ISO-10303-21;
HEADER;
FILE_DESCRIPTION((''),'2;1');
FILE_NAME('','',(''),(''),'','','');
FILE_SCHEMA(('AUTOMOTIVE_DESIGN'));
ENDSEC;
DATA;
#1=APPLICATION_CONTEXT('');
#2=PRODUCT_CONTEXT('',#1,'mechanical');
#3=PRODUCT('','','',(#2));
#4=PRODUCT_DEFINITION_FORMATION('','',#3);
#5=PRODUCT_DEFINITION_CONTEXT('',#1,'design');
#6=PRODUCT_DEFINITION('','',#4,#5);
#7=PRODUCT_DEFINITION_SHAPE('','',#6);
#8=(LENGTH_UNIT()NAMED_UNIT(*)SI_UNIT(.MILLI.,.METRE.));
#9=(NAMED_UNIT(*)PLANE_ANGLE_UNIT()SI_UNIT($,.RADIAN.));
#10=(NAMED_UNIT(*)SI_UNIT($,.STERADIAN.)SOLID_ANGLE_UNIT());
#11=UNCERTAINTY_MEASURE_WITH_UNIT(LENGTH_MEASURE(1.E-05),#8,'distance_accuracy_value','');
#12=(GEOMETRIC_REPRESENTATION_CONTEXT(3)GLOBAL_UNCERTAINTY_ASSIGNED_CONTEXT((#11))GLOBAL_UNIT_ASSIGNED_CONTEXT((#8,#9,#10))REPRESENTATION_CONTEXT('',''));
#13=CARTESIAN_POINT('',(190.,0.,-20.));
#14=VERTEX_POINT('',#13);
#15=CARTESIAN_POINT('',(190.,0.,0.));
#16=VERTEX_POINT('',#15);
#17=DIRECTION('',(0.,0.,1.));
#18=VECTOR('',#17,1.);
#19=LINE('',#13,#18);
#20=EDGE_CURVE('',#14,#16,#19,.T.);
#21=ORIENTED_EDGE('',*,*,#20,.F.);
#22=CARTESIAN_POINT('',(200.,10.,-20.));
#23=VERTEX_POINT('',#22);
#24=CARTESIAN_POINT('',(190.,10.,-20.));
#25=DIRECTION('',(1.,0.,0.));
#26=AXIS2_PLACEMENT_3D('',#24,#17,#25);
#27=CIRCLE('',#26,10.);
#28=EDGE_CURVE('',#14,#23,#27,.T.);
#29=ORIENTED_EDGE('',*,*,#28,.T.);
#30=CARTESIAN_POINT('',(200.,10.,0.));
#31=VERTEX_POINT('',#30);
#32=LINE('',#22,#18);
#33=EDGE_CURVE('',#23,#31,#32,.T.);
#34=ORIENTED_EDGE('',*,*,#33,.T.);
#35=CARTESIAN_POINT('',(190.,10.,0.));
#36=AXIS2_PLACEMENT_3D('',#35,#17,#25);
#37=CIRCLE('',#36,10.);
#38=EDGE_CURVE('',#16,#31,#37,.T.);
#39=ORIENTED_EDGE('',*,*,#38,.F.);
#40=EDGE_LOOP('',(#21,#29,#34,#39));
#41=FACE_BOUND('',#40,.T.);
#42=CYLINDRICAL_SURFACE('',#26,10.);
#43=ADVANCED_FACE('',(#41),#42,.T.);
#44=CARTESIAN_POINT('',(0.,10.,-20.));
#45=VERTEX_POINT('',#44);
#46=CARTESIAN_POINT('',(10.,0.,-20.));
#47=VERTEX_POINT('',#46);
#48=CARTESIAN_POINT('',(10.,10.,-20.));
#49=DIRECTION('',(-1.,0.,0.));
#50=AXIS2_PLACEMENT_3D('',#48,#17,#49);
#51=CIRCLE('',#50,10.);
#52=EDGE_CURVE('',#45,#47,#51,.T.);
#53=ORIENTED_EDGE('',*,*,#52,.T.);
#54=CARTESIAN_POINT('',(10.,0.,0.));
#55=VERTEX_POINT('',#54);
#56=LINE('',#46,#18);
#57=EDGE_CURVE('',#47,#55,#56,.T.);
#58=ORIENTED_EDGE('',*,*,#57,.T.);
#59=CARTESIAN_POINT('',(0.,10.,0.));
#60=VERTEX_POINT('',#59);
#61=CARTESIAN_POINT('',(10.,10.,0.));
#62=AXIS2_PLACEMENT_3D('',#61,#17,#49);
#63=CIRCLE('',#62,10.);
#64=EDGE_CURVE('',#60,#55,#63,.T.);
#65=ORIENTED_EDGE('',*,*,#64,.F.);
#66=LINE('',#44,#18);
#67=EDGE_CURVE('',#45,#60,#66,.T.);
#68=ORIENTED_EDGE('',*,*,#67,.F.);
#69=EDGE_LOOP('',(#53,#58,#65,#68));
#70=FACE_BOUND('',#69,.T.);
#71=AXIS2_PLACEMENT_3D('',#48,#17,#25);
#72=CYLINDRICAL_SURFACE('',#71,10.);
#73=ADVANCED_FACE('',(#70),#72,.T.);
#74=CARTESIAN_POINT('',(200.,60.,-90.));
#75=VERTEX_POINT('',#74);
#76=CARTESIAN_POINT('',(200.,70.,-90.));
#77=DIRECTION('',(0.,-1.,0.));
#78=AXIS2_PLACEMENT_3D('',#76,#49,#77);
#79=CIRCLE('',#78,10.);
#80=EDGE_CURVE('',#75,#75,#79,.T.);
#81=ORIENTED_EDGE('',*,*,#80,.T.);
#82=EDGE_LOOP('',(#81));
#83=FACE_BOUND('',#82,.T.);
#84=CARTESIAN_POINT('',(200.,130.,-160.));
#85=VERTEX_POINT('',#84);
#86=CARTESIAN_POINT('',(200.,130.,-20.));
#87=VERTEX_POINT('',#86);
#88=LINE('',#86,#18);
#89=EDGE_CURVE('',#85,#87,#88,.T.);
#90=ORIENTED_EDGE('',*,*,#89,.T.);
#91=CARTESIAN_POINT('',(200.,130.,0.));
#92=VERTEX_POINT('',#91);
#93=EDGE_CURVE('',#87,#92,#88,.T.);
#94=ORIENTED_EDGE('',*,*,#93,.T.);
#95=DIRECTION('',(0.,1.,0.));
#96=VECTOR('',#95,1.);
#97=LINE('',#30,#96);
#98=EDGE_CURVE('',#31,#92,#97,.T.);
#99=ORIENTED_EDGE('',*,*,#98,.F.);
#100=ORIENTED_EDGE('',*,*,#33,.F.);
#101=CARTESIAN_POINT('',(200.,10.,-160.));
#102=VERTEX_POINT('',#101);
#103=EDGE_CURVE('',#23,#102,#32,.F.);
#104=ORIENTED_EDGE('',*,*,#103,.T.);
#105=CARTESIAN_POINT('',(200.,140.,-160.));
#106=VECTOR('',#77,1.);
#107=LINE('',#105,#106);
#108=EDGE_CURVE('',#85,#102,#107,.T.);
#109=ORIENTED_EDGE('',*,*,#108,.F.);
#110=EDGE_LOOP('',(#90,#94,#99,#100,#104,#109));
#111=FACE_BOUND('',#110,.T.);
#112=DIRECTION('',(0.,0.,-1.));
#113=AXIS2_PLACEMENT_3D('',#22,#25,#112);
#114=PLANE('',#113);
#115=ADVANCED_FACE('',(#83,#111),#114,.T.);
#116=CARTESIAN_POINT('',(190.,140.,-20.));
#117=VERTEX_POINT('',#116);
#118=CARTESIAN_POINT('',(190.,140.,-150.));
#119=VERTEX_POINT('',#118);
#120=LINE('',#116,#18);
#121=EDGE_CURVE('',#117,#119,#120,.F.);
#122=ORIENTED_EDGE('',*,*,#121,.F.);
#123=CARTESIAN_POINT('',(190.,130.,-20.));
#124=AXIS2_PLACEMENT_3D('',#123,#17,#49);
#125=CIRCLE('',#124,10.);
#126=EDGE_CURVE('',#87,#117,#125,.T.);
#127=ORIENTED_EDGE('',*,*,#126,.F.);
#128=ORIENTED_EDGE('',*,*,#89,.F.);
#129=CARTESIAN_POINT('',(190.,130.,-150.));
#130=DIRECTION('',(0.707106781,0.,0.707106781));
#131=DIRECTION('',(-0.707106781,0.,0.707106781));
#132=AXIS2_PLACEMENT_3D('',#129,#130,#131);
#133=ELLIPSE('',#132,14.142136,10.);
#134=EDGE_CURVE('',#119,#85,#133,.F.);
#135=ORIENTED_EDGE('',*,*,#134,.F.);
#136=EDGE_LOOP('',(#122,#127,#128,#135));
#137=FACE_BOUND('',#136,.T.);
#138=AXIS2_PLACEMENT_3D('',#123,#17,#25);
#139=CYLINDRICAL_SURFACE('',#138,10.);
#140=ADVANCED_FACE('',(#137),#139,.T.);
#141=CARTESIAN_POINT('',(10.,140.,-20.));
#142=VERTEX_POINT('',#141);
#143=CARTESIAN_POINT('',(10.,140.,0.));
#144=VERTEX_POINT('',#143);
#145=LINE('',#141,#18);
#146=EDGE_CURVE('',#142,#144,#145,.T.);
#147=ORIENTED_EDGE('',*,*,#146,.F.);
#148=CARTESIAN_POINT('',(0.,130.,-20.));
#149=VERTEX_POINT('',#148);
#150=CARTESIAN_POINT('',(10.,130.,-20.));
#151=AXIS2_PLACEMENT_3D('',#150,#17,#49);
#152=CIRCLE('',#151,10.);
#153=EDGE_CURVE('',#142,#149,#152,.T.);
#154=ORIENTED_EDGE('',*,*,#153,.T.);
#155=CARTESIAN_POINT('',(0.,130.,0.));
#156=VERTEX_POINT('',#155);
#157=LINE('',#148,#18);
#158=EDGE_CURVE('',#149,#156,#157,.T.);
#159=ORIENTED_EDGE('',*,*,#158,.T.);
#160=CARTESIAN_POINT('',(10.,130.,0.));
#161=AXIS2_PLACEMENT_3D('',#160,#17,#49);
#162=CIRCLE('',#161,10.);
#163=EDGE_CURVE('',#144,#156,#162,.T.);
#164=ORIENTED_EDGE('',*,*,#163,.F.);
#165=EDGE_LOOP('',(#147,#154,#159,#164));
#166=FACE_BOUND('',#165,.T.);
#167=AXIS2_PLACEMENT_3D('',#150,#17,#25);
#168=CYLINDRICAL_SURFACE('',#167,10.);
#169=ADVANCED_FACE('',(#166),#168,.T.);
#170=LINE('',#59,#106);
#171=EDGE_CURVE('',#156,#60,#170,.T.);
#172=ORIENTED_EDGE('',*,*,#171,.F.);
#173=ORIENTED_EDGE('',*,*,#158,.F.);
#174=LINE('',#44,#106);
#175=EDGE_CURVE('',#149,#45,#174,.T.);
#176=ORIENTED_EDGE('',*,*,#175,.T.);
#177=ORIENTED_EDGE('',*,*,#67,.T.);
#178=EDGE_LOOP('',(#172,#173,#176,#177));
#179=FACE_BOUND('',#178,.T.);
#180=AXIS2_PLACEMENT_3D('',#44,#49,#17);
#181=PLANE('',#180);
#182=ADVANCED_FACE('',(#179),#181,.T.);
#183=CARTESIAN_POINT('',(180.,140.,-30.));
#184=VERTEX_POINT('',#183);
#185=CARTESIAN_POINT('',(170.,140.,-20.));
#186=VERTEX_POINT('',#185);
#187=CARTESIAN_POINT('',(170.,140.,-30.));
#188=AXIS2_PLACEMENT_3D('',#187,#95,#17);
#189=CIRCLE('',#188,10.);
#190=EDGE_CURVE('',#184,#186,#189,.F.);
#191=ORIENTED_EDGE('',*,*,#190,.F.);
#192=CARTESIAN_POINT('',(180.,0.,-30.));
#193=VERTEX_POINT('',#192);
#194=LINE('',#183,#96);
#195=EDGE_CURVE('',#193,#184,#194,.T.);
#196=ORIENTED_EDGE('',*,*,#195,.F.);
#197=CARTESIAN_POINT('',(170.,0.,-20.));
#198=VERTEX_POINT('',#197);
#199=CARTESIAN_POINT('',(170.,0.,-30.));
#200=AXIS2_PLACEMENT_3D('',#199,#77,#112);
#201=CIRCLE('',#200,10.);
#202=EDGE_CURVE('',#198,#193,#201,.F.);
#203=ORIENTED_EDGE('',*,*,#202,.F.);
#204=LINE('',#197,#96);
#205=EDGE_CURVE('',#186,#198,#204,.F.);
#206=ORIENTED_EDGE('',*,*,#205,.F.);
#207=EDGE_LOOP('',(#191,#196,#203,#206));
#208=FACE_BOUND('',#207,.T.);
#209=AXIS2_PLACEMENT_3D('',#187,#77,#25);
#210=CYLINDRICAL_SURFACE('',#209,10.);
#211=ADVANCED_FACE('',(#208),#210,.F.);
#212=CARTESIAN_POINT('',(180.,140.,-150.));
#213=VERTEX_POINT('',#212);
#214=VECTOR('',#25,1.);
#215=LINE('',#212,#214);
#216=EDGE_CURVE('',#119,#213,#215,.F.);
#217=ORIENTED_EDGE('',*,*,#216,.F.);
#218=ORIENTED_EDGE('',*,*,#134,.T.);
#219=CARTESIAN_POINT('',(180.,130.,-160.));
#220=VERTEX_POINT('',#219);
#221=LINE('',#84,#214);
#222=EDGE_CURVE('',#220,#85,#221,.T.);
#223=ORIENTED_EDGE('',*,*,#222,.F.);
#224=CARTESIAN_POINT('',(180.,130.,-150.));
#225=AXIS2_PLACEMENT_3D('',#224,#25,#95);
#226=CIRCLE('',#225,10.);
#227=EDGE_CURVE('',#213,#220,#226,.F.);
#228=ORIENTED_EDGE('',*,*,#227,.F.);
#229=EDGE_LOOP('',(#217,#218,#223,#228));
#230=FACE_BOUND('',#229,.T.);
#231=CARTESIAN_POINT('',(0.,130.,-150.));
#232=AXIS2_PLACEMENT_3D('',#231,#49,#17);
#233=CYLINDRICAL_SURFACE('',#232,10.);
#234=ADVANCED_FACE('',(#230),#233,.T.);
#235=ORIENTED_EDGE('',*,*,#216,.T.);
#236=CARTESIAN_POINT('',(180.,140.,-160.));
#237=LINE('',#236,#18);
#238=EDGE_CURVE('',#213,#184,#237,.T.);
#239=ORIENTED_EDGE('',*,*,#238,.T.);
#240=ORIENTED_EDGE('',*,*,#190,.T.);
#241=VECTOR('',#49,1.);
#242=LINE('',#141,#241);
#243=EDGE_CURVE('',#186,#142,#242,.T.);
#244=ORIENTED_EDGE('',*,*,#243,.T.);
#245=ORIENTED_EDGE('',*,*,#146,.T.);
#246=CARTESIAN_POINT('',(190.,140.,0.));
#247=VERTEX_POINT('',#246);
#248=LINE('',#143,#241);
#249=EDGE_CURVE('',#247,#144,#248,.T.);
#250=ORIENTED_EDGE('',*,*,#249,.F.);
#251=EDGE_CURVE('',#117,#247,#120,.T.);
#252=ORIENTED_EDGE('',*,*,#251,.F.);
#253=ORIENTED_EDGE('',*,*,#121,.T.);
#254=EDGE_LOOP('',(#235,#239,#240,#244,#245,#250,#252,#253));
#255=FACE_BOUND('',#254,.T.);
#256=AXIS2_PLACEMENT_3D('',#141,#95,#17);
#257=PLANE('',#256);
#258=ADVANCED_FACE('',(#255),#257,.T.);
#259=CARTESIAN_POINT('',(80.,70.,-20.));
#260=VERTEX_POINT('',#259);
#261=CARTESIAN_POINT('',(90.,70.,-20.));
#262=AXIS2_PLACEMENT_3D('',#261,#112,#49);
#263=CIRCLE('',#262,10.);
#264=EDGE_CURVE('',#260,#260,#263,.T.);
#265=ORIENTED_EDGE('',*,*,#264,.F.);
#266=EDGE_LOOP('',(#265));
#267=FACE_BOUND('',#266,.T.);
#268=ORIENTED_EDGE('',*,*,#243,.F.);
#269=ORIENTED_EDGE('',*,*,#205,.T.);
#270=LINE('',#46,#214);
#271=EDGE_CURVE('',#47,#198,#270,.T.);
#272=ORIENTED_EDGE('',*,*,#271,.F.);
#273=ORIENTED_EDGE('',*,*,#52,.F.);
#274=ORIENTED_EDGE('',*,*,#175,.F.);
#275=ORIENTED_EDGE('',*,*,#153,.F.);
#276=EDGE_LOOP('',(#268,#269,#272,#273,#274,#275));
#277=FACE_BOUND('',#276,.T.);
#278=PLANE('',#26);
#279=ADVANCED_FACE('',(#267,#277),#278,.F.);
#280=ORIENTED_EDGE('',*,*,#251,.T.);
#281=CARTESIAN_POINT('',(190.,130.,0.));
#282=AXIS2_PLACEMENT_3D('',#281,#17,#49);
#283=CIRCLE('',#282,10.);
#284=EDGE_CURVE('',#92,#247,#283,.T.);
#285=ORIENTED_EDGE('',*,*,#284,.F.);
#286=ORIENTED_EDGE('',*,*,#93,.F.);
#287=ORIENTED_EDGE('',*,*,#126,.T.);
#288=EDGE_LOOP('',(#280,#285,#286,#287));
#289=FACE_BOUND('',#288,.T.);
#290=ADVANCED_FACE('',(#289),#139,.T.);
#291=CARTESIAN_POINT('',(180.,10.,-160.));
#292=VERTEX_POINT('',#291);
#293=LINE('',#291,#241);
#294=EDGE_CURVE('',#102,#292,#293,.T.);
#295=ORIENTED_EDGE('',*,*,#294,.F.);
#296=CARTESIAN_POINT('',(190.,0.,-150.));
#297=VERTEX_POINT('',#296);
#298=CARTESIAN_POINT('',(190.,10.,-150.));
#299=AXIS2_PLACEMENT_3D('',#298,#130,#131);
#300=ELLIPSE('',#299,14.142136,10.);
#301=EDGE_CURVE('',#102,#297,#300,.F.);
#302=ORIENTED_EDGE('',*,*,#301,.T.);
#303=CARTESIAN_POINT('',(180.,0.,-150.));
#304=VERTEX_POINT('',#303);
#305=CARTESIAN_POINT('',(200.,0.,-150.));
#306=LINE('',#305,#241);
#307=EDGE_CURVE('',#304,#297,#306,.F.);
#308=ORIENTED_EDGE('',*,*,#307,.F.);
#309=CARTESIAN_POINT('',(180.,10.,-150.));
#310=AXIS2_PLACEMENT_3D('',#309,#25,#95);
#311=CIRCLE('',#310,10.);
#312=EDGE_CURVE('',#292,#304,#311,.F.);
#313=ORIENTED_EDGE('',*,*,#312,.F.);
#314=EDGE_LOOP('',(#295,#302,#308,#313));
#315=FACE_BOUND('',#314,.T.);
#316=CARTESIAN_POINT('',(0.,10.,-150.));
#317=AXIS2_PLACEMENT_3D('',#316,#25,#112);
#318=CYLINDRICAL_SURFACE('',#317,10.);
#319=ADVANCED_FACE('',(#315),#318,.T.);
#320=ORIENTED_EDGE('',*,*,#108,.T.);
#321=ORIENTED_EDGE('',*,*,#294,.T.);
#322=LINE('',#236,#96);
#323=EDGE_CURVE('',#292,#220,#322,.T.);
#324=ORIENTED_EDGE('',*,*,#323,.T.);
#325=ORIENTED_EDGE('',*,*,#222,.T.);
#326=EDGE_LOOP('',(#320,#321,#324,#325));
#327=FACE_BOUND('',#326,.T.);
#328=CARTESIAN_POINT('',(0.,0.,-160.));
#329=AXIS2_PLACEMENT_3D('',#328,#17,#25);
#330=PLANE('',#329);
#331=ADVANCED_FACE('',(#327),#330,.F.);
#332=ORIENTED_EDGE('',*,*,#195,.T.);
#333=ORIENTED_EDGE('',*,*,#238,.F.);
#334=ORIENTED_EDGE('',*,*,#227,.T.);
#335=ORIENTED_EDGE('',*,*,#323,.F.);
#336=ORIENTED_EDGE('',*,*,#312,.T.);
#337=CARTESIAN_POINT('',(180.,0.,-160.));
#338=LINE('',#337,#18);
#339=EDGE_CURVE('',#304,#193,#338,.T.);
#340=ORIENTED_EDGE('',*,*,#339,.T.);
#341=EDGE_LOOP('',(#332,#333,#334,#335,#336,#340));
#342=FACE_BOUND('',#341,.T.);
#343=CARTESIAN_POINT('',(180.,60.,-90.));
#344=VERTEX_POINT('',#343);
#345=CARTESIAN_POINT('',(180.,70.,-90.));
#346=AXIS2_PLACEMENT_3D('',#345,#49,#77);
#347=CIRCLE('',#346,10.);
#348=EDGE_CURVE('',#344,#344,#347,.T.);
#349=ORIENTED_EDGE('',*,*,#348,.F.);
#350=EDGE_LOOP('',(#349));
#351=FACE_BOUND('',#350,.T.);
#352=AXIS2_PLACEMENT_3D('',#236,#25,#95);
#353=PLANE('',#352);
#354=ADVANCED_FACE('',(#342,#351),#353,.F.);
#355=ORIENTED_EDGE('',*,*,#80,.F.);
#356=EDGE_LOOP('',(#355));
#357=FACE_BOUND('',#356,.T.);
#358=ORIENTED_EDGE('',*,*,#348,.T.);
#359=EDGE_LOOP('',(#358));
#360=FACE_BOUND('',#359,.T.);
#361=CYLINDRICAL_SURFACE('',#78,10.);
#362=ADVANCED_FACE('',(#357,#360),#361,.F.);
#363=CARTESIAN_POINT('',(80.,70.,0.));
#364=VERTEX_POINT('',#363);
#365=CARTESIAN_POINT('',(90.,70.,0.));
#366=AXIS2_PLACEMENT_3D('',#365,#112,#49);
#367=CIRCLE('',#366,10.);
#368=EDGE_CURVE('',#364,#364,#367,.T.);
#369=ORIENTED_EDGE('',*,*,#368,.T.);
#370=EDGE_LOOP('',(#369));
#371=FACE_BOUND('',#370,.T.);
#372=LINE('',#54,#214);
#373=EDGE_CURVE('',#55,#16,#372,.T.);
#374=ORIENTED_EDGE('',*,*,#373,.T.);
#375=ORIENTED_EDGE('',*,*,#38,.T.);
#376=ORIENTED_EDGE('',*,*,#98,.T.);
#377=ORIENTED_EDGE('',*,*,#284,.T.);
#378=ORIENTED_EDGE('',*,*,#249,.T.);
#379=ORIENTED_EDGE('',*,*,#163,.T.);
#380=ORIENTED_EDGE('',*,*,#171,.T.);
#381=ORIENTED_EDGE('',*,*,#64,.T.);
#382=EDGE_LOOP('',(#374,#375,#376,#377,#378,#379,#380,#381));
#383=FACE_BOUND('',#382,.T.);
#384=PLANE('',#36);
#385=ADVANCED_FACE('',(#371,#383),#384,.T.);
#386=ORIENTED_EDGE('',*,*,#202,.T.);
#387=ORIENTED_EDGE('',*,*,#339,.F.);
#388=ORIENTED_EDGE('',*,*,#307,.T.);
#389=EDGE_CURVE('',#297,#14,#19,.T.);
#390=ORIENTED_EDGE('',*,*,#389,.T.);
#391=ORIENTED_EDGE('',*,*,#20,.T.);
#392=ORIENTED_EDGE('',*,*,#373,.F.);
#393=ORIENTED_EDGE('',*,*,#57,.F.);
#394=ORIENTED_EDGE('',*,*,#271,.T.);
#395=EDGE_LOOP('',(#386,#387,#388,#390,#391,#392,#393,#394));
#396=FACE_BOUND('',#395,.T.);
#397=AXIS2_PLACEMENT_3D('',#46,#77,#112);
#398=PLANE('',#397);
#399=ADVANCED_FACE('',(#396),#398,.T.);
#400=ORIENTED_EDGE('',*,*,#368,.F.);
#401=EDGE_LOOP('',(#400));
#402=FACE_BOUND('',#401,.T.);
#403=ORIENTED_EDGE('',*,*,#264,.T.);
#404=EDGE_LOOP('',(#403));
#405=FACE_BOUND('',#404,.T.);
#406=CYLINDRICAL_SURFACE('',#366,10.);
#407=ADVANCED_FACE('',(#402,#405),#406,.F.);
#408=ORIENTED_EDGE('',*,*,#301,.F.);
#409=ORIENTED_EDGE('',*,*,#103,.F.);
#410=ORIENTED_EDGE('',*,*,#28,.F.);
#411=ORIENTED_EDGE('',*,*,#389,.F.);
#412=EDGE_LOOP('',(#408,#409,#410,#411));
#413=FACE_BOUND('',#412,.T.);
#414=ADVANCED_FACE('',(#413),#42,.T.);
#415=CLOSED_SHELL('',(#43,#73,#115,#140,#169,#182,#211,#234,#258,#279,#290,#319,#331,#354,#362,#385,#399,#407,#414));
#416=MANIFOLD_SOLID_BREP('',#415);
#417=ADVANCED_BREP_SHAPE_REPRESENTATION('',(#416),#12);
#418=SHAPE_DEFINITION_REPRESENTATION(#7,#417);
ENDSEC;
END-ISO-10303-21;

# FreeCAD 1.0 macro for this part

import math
import FreeCAD as App
import Part
import Sketcher
from FreeCAD import Vector
Q = App.Units.Quantity


def edges_at(feature, points):
    """Names of the edges that pass closest to the given points."""
    edges = feature.Shape.Edges
    near = lambda p: min(range(len(edges)), key=lambda i: edges[i].distToShape(Part.Vertex(*p))[0])
    return sorted({f"Edge{near(p) + 1}" for p in points})


def add_polygon(sketch, points):
    """Adds a closed chain of lines whose ends are joined by coincident constraints."""
    first, n = sketch.GeometryCount, len(points)
    for a, b in zip(points, points[1:] + points[:1]):
        sketch.addGeometry(Part.LineSegment(App.Vector(*a, 0), App.Vector(*b, 0)), False)
    for i in range(n):
        sketch.addConstraint(Sketcher.Constraint("Coincident", first + i, 2, first + (i + 1) % n, 1))

doc = App.newDocument("Part")
body = doc.addObject("PartDesign::Body", "Body")

sketch1 = body.newObject("Sketcher::SketchObject", "Sketch")
sketch1.AttachmentSupport = (doc.getObject("XY_Plane"), [""])
sketch1.MapMode = "FlatFace"
sketch1.addGeometry([
    Part.LineSegment(Vector(10, 0, 0), Vector(190, 0, 0)),
    Part.ArcOfCircle(Part.Circle(Vector(190, 10, 0), Vector(0, 0, 1), 10), math.radians(-90), math.radians(0)),
    Part.LineSegment(Vector(200, 10, 0), Vector(200, 130, 0)),
    Part.ArcOfCircle(Part.Circle(Vector(190, 130, 0), Vector(0, 0, 1), 10), math.radians(0), math.radians(90)),
    Part.LineSegment(Vector(190, 140, 0), Vector(10, 140, 0)),
    Part.ArcOfCircle(Part.Circle(Vector(10, 130, 0), Vector(0, 0, 1), 10), math.radians(90), math.radians(180)),
    Part.LineSegment(Vector(0, 130, 0), Vector(0, 10, 0)),
    Part.ArcOfCircle(Part.Circle(Vector(10, 10, 0), Vector(0, 0, 1), 10), math.radians(180), math.radians(270)),
], False)
sketch1.addConstraint([
    Sketcher.Constraint("Tangent", 0, 2, 1, 1),
    Sketcher.Constraint("Tangent", 1, 2, 2, 1),
    Sketcher.Constraint("Tangent", 2, 2, 3, 1),
    Sketcher.Constraint("Tangent", 3, 2, 4, 1),
    Sketcher.Constraint("Tangent", 4, 2, 5, 1),
    Sketcher.Constraint("Tangent", 5, 2, 6, 1),
    Sketcher.Constraint("Tangent", 6, 2, 7, 1),
    Sketcher.Constraint("Tangent", 7, 2, 0, 1),
    Sketcher.Constraint("Horizontal", 0),
    Sketcher.Constraint("Vertical", 2),
    Sketcher.Constraint("Horizontal", 4),
    Sketcher.Constraint("Vertical", 6),
    Sketcher.Constraint("Equal", 1, 3),
    Sketcher.Constraint("Equal", 3, 5),
    Sketcher.Constraint("Equal", 5, 7),
    Sketcher.Constraint("PointOnObject", 0, 2, -1),
    Sketcher.Constraint("PointOnObject", 5, 2, -2),
    Sketcher.Constraint("Radius", 1, Q("10 mm")),
    Sketcher.Constraint("DistanceX", 0, 1, 0, 2, Q("180 mm")),
    Sketcher.Constraint("DistanceY", 2, 1, 2, 2, Q("120 mm")),
])
pad1 = body.newObject("PartDesign::Pad", "Pad")
pad1.Profile = sketch1
pad1.Length = 20
pad1.Reversed = True

sketch2 = body.newObject("Sketcher::SketchObject", "Sketch001")
sketch2.AttachmentSupport = (doc.getObject("XY_Plane"), [""])
sketch2.MapMode = "FlatFace"
sketch2.AttachmentOffset = App.Placement(Vector(0, 0, -20), App.Rotation())
add_polygon(sketch2, [(180, 140), (200, 140), (200, 0), (180, 0)])
sketch2.addConstraint([
    Sketcher.Constraint("Horizontal", 0),
    Sketcher.Constraint("Vertical", 1),
    Sketcher.Constraint("Horizontal", 2),
    Sketcher.Constraint("Vertical", 3),
    Sketcher.Constraint("PointOnObject", 1, 2, -1),
    Sketcher.Constraint("DistanceX", 0, 1, 0, 2, Q("20 mm")),
    Sketcher.Constraint("DistanceY", 1, 2, 1, 1, Q("140 mm")),
    Sketcher.Constraint("DistanceX", -1, 1, 0, 2, Q("200 mm")),
])
pad2 = body.newObject("PartDesign::Pad", "Pad001")
pad2.Profile = sketch2
pad2.Length = 140
pad2.Reversed = True
doc.recompute()

fillet = body.newObject("PartDesign::Fillet", "Fillet")
fillet.Base = (pad2, edges_at(pad2, [
    (190, 0, -160),
    (190, 140, -160),
    (180, 70, -20),
    (200, 0, -90),
    (200, 140, -90),
]))
fillet.Radius = 10

sketch3 = body.newObject("Sketcher::SketchObject", "Sketch002")
sketch3.AttachmentSupport = (doc.getObject("XY_Plane"), [""])
sketch3.MapMode = "FlatFace"
sketch3.AttachmentOffset = App.Placement(Vector(0, 0, -20), App.Rotation())
sketch3.addGeometry(Part.Circle(Vector(90, 70, 0), Vector(0, 0, 1), 10), False)
sketch3.addConstraint([
    Sketcher.Constraint("Diameter", 0, Q("20 mm")),
    Sketcher.Constraint("DistanceX", -1, 1, 0, 3, Q("90 mm")),
    Sketcher.Constraint("DistanceY", -1, 1, 0, 3, Q("70 mm")),
])
pocket1 = body.newObject("PartDesign::Pocket", "Pocket")
pocket1.Profile = sketch3
pocket1.Type = "ThroughAll"
pocket1.Reversed = True

sketch4 = body.newObject("Sketcher::SketchObject", "Sketch003")
sketch4.AttachmentSupport = (doc.getObject("YZ_Plane"), [""])
sketch4.MapMode = "FlatFace"
sketch4.AttachmentOffset = App.Placement(Vector(0, 0, 180), App.Rotation())
sketch4.addGeometry(Part.Circle(Vector(70, -90, 0), Vector(0, 0, 1), 10), False)
sketch4.addConstraint([
    Sketcher.Constraint("Diameter", 0, Q("20 mm")),
    Sketcher.Constraint("DistanceX", -1, 1, 0, 3, Q("70 mm")),
    Sketcher.Constraint("DistanceY", 0, 3, -1, 1, Q("90 mm")),
])
pocket2 = body.newObject("PartDesign::Pocket", "Pocket001")
pocket2.Profile = sketch4
pocket2.Type = "ThroughAll"
pocket2.Reversed = True

doc.recompute()
